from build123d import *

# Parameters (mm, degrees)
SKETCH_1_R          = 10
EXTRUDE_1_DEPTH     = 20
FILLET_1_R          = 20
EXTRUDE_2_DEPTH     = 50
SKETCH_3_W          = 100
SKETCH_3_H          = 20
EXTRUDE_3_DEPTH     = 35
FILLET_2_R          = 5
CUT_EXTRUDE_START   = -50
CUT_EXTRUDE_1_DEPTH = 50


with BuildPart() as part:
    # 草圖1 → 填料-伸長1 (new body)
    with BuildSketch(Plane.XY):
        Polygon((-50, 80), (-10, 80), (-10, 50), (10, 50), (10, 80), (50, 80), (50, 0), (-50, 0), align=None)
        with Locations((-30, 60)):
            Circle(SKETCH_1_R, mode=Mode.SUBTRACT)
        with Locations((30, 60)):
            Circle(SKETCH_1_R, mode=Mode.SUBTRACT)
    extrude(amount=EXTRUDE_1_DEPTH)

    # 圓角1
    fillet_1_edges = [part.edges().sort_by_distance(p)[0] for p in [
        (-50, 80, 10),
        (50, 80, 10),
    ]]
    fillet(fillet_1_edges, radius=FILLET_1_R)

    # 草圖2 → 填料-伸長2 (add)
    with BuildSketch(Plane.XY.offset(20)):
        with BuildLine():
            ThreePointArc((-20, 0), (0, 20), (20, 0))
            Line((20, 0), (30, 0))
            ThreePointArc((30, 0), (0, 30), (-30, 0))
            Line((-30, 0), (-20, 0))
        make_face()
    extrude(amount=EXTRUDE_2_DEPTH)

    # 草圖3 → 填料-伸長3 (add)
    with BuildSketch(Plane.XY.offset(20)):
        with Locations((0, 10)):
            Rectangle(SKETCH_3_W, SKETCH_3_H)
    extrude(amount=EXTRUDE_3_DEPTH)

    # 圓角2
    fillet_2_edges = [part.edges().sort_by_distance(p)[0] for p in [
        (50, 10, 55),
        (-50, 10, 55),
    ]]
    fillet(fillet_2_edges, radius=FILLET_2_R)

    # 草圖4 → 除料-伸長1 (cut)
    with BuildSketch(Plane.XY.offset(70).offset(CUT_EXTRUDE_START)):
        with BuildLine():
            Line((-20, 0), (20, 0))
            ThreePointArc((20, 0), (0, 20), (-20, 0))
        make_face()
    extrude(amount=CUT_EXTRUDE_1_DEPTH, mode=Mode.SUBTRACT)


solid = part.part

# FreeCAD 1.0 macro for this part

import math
import FreeCAD as App
import Part
import Sketcher
from FreeCAD import Vector


def edges_at(feature, points):
    """Names of the edges that pass closest to the given points."""
    edges = feature.Shape.Edges
    near = lambda p: min(range(len(edges)), key=lambda i: edges[i].distToShape(Part.Vertex(*p))[0])
    return sorted({f"Edge{near(p) + 1}" for p in points})


def add_polygon(sketch, points):
    """Adds a closed chain of lines whose ends are joined by coincident constraints."""
    first, n = sketch.GeometryCount, len(points)
    for a, b in zip(points, points[1:] + points[:1]):
        sketch.addGeometry(Part.LineSegment(App.Vector(*a, 0), App.Vector(*b, 0)), False)
    for i in range(n):
        sketch.addConstraint(Sketcher.Constraint("Coincident", first + i, 2, first + (i + 1) % n, 1))

doc = App.newDocument("Part")
body = doc.addObject("PartDesign::Body", "Body")

sketch1 = body.newObject("Sketcher::SketchObject", "Sketch")
sketch1.AttachmentSupport = (doc.getObject("XY_Plane"), [""])
sketch1.MapMode = "FlatFace"
add_polygon(sketch1, [(-10, 80), (-50, 80), (-50, 0), (50, 0), (50, 80), (10, 80), (10, 50), (-10, 50)])
sketch1.addGeometry(Part.Circle(Vector(30, 60, 0), Vector(0, 0, 1), 10), False)
sketch1.addGeometry(Part.Circle(Vector(-30, 60, 0), Vector(0, 0, 1), 10), False)
sketch1.addConstraint([
    Sketcher.Constraint("Horizontal", 0),
    Sketcher.Constraint("Vertical", 1),
    Sketcher.Constraint("Horizontal", 2),
    Sketcher.Constraint("Vertical", 3),
    Sketcher.Constraint("Horizontal", 4),
    Sketcher.Constraint("Vertical", 5),
    Sketcher.Constraint("Horizontal", 6),
    Sketcher.Constraint("Vertical", 7),
    Sketcher.Constraint("Equal", 8, 9),
    Sketcher.Constraint("Symmetric", 1, 2, 2, 2, -1, 1),
    Sketcher.Constraint("Symmetric", 8, 3, 9, 3, -2),
    Sketcher.Constraint("Symmetric", 4, 2, 7, 2, -2),
    Sketcher.Constraint("Diameter", 8, 20.0),
    Sketcher.Constraint("DistanceX", 0, 2, 0, 1, 40.0),
    Sketcher.Constraint("DistanceX", 2, 1, 2, 2, 100.0),
    Sketcher.Constraint("DistanceY", 1, 2, 1, 1, 80.0),
    Sketcher.Constraint("DistanceY", 5, 2, 5, 1, 30.0),
    Sketcher.Constraint("DistanceX", -1, 1, 8, 3, 30.0),
    Sketcher.Constraint("DistanceY", -1, 1, 8, 3, 60.0),
])
pad1 = body.newObject("PartDesign::Pad", "Pad")
pad1.Profile = sketch1
pad1.Length = 20
doc.recompute()

fillet = body.newObject("PartDesign::Fillet", "Fillet")
fillet.Base = (pad1, edges_at(pad1, [(-50, 80, 10), (50, 80, 10)]))
fillet.Radius = 20

sketch2 = body.newObject("Sketcher::SketchObject", "Sketch001")
sketch2.AttachmentSupport = (doc.getObject("XY_Plane"), [""])
sketch2.MapMode = "FlatFace"
sketch2.AttachmentOffset = App.Placement(Vector(0, 0, 20), App.Rotation())
sketch2.addGeometry([
    Part.ArcOfCircle(Part.Circle(Vector(0, 0, 0), Vector(0, 0, 1), 20), math.radians(0), math.radians(180)),
    Part.LineSegment(Vector(20, 0, 0), Vector(30, 0, 0)),
    Part.ArcOfCircle(Part.Circle(Vector(0, 0, 0), Vector(0, 0, 1), 30), math.radians(0), math.radians(180)),
    Part.LineSegment(Vector(-30, 0, 0), Vector(-20, 0, 0)),
], False)
sketch2.addConstraint([
    Sketcher.Constraint("Coincident", 0, 1, 1, 1),
    Sketcher.Constraint("Coincident", 1, 2, 2, 1),
    Sketcher.Constraint("Coincident", 2, 2, 3, 1),
    Sketcher.Constraint("Coincident", 3, 2, 0, 2),
    Sketcher.Constraint("Horizontal", 1),
    Sketcher.Constraint("Horizontal", 3),
    Sketcher.Constraint("Coincident", 0, 3, -1, 1),
    Sketcher.Constraint("Coincident", 2, 3, -1, 1),
    Sketcher.Constraint("PointOnObject", 0, 1, -1),
    Sketcher.Constraint("PointOnObject", 2, 2, -1),
    Sketcher.Constraint("Radius", 0, 20.0),
    Sketcher.Constraint("Radius", 2, 30.0),
])
pad2 = body.newObject("PartDesign::Pad", "Pad001")
pad2.Profile = sketch2
pad2.Length = 50

sketch3 = body.newObject("Sketcher::SketchObject", "Sketch002")
sketch3.AttachmentSupport = (doc.getObject("XY_Plane"), [""])
sketch3.MapMode = "FlatFace"
sketch3.AttachmentOffset = App.Placement(Vector(0, 0, 20), App.Rotation())
add_polygon(sketch3, [(-50, 20), (-50, 0), (50, 0), (50, 20)])
sketch3.addConstraint([
    Sketcher.Constraint("Vertical", 0),
    Sketcher.Constraint("Horizontal", 1),
    Sketcher.Constraint("Vertical", 2),
    Sketcher.Constraint("Horizontal", 3),
    Sketcher.Constraint("Symmetric", 0, 2, 1, 2, -1, 1),
    Sketcher.Constraint("DistanceX", 1, 1, 1, 2, 100.0),
    Sketcher.Constraint("DistanceY", 0, 2, 0, 1, 20.0),
])
pad3 = body.newObject("PartDesign::Pad", "Pad002")
pad3.Profile = sketch3
pad3.Length = 35
doc.recompute()

fillet2 = body.newObject("PartDesign::Fillet", "Fillet001")
fillet2.Base = (pad3, edges_at(pad3, [(50, 10, 55), (-50, 10, 55)]))
fillet2.Radius = 5

sketch4 = body.newObject("Sketcher::SketchObject", "Sketch003")
sketch4.AttachmentSupport = (doc.getObject("XY_Plane"), [""])
sketch4.MapMode = "FlatFace"
sketch4.AttachmentOffset = App.Placement(Vector(0, 0, 20), App.Rotation())
sketch4.addGeometry([
    Part.LineSegment(Vector(-20, 0, 0), Vector(20, 0, 0)),
    Part.ArcOfCircle(Part.Circle(Vector(0, 0, 0), Vector(0, 0, 1), 20), math.radians(0), math.radians(180)),
], False)
sketch4.addConstraint([
    Sketcher.Constraint("Coincident", 0, 1, 1, 2),
    Sketcher.Constraint("Coincident", 1, 1, 0, 2),
    Sketcher.Constraint("Horizontal", 0),
    Sketcher.Constraint("Coincident", 1, 3, -1, 1),
    Sketcher.Constraint("PointOnObject", 0, 1, -1),
    Sketcher.Constraint("Radius", 1, 20.0),
])
pocket1 = body.newObject("PartDesign::Pocket", "Pocket")
pocket1.Profile = sketch4
pocket1.Length = 50
pocket1.Reversed = True

doc.recompute()
